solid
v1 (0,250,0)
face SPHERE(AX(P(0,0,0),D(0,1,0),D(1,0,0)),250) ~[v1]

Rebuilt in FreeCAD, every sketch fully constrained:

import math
import FreeCAD as App
import Part
import Sketcher

V = App.Vector

doc = App.newDocument("Part")
body = doc.addObject("PartDesign::Body", "Body")

# Sketch on XY plane
sketch1 = body.newObject("Sketcher::SketchObject", "Sketch")
sketch1.AttachmentSupport = (doc.getObject("XY_Plane"), [""])
sketch1.MapMode = "FlatFace"
sketch1.addGeometry([
    Part.LineSegment(V(0, 250, 0), V(0, -250, 0)),
    Part.ArcOfCircle(Part.Circle(V(0, 0, 0), V(0, 0, 1), 250), math.radians(-90), math.radians(90)),
], False)
sketch1.addConstraint([
    Sketcher.Constraint("Coincident", 0, 1, 1, 2),
    Sketcher.Constraint("Coincident", 1, 1, 0, 2),
    Sketcher.Constraint("Vertical", 0),
    Sketcher.Constraint("Coincident", 1, 3, -1, 1),
    Sketcher.Constraint("PointOnObject", 0, 1, -2),
    Sketcher.Constraint("Radius", 1, 250.0),
])
revolution = body.newObject("PartDesign::Revolution", "Revolution")
revolution.Profile = sketch1
revolution.ReferenceAxis = (sketch1, ["V_Axis"])
revolution.Angle = 360

doc.recompute()
